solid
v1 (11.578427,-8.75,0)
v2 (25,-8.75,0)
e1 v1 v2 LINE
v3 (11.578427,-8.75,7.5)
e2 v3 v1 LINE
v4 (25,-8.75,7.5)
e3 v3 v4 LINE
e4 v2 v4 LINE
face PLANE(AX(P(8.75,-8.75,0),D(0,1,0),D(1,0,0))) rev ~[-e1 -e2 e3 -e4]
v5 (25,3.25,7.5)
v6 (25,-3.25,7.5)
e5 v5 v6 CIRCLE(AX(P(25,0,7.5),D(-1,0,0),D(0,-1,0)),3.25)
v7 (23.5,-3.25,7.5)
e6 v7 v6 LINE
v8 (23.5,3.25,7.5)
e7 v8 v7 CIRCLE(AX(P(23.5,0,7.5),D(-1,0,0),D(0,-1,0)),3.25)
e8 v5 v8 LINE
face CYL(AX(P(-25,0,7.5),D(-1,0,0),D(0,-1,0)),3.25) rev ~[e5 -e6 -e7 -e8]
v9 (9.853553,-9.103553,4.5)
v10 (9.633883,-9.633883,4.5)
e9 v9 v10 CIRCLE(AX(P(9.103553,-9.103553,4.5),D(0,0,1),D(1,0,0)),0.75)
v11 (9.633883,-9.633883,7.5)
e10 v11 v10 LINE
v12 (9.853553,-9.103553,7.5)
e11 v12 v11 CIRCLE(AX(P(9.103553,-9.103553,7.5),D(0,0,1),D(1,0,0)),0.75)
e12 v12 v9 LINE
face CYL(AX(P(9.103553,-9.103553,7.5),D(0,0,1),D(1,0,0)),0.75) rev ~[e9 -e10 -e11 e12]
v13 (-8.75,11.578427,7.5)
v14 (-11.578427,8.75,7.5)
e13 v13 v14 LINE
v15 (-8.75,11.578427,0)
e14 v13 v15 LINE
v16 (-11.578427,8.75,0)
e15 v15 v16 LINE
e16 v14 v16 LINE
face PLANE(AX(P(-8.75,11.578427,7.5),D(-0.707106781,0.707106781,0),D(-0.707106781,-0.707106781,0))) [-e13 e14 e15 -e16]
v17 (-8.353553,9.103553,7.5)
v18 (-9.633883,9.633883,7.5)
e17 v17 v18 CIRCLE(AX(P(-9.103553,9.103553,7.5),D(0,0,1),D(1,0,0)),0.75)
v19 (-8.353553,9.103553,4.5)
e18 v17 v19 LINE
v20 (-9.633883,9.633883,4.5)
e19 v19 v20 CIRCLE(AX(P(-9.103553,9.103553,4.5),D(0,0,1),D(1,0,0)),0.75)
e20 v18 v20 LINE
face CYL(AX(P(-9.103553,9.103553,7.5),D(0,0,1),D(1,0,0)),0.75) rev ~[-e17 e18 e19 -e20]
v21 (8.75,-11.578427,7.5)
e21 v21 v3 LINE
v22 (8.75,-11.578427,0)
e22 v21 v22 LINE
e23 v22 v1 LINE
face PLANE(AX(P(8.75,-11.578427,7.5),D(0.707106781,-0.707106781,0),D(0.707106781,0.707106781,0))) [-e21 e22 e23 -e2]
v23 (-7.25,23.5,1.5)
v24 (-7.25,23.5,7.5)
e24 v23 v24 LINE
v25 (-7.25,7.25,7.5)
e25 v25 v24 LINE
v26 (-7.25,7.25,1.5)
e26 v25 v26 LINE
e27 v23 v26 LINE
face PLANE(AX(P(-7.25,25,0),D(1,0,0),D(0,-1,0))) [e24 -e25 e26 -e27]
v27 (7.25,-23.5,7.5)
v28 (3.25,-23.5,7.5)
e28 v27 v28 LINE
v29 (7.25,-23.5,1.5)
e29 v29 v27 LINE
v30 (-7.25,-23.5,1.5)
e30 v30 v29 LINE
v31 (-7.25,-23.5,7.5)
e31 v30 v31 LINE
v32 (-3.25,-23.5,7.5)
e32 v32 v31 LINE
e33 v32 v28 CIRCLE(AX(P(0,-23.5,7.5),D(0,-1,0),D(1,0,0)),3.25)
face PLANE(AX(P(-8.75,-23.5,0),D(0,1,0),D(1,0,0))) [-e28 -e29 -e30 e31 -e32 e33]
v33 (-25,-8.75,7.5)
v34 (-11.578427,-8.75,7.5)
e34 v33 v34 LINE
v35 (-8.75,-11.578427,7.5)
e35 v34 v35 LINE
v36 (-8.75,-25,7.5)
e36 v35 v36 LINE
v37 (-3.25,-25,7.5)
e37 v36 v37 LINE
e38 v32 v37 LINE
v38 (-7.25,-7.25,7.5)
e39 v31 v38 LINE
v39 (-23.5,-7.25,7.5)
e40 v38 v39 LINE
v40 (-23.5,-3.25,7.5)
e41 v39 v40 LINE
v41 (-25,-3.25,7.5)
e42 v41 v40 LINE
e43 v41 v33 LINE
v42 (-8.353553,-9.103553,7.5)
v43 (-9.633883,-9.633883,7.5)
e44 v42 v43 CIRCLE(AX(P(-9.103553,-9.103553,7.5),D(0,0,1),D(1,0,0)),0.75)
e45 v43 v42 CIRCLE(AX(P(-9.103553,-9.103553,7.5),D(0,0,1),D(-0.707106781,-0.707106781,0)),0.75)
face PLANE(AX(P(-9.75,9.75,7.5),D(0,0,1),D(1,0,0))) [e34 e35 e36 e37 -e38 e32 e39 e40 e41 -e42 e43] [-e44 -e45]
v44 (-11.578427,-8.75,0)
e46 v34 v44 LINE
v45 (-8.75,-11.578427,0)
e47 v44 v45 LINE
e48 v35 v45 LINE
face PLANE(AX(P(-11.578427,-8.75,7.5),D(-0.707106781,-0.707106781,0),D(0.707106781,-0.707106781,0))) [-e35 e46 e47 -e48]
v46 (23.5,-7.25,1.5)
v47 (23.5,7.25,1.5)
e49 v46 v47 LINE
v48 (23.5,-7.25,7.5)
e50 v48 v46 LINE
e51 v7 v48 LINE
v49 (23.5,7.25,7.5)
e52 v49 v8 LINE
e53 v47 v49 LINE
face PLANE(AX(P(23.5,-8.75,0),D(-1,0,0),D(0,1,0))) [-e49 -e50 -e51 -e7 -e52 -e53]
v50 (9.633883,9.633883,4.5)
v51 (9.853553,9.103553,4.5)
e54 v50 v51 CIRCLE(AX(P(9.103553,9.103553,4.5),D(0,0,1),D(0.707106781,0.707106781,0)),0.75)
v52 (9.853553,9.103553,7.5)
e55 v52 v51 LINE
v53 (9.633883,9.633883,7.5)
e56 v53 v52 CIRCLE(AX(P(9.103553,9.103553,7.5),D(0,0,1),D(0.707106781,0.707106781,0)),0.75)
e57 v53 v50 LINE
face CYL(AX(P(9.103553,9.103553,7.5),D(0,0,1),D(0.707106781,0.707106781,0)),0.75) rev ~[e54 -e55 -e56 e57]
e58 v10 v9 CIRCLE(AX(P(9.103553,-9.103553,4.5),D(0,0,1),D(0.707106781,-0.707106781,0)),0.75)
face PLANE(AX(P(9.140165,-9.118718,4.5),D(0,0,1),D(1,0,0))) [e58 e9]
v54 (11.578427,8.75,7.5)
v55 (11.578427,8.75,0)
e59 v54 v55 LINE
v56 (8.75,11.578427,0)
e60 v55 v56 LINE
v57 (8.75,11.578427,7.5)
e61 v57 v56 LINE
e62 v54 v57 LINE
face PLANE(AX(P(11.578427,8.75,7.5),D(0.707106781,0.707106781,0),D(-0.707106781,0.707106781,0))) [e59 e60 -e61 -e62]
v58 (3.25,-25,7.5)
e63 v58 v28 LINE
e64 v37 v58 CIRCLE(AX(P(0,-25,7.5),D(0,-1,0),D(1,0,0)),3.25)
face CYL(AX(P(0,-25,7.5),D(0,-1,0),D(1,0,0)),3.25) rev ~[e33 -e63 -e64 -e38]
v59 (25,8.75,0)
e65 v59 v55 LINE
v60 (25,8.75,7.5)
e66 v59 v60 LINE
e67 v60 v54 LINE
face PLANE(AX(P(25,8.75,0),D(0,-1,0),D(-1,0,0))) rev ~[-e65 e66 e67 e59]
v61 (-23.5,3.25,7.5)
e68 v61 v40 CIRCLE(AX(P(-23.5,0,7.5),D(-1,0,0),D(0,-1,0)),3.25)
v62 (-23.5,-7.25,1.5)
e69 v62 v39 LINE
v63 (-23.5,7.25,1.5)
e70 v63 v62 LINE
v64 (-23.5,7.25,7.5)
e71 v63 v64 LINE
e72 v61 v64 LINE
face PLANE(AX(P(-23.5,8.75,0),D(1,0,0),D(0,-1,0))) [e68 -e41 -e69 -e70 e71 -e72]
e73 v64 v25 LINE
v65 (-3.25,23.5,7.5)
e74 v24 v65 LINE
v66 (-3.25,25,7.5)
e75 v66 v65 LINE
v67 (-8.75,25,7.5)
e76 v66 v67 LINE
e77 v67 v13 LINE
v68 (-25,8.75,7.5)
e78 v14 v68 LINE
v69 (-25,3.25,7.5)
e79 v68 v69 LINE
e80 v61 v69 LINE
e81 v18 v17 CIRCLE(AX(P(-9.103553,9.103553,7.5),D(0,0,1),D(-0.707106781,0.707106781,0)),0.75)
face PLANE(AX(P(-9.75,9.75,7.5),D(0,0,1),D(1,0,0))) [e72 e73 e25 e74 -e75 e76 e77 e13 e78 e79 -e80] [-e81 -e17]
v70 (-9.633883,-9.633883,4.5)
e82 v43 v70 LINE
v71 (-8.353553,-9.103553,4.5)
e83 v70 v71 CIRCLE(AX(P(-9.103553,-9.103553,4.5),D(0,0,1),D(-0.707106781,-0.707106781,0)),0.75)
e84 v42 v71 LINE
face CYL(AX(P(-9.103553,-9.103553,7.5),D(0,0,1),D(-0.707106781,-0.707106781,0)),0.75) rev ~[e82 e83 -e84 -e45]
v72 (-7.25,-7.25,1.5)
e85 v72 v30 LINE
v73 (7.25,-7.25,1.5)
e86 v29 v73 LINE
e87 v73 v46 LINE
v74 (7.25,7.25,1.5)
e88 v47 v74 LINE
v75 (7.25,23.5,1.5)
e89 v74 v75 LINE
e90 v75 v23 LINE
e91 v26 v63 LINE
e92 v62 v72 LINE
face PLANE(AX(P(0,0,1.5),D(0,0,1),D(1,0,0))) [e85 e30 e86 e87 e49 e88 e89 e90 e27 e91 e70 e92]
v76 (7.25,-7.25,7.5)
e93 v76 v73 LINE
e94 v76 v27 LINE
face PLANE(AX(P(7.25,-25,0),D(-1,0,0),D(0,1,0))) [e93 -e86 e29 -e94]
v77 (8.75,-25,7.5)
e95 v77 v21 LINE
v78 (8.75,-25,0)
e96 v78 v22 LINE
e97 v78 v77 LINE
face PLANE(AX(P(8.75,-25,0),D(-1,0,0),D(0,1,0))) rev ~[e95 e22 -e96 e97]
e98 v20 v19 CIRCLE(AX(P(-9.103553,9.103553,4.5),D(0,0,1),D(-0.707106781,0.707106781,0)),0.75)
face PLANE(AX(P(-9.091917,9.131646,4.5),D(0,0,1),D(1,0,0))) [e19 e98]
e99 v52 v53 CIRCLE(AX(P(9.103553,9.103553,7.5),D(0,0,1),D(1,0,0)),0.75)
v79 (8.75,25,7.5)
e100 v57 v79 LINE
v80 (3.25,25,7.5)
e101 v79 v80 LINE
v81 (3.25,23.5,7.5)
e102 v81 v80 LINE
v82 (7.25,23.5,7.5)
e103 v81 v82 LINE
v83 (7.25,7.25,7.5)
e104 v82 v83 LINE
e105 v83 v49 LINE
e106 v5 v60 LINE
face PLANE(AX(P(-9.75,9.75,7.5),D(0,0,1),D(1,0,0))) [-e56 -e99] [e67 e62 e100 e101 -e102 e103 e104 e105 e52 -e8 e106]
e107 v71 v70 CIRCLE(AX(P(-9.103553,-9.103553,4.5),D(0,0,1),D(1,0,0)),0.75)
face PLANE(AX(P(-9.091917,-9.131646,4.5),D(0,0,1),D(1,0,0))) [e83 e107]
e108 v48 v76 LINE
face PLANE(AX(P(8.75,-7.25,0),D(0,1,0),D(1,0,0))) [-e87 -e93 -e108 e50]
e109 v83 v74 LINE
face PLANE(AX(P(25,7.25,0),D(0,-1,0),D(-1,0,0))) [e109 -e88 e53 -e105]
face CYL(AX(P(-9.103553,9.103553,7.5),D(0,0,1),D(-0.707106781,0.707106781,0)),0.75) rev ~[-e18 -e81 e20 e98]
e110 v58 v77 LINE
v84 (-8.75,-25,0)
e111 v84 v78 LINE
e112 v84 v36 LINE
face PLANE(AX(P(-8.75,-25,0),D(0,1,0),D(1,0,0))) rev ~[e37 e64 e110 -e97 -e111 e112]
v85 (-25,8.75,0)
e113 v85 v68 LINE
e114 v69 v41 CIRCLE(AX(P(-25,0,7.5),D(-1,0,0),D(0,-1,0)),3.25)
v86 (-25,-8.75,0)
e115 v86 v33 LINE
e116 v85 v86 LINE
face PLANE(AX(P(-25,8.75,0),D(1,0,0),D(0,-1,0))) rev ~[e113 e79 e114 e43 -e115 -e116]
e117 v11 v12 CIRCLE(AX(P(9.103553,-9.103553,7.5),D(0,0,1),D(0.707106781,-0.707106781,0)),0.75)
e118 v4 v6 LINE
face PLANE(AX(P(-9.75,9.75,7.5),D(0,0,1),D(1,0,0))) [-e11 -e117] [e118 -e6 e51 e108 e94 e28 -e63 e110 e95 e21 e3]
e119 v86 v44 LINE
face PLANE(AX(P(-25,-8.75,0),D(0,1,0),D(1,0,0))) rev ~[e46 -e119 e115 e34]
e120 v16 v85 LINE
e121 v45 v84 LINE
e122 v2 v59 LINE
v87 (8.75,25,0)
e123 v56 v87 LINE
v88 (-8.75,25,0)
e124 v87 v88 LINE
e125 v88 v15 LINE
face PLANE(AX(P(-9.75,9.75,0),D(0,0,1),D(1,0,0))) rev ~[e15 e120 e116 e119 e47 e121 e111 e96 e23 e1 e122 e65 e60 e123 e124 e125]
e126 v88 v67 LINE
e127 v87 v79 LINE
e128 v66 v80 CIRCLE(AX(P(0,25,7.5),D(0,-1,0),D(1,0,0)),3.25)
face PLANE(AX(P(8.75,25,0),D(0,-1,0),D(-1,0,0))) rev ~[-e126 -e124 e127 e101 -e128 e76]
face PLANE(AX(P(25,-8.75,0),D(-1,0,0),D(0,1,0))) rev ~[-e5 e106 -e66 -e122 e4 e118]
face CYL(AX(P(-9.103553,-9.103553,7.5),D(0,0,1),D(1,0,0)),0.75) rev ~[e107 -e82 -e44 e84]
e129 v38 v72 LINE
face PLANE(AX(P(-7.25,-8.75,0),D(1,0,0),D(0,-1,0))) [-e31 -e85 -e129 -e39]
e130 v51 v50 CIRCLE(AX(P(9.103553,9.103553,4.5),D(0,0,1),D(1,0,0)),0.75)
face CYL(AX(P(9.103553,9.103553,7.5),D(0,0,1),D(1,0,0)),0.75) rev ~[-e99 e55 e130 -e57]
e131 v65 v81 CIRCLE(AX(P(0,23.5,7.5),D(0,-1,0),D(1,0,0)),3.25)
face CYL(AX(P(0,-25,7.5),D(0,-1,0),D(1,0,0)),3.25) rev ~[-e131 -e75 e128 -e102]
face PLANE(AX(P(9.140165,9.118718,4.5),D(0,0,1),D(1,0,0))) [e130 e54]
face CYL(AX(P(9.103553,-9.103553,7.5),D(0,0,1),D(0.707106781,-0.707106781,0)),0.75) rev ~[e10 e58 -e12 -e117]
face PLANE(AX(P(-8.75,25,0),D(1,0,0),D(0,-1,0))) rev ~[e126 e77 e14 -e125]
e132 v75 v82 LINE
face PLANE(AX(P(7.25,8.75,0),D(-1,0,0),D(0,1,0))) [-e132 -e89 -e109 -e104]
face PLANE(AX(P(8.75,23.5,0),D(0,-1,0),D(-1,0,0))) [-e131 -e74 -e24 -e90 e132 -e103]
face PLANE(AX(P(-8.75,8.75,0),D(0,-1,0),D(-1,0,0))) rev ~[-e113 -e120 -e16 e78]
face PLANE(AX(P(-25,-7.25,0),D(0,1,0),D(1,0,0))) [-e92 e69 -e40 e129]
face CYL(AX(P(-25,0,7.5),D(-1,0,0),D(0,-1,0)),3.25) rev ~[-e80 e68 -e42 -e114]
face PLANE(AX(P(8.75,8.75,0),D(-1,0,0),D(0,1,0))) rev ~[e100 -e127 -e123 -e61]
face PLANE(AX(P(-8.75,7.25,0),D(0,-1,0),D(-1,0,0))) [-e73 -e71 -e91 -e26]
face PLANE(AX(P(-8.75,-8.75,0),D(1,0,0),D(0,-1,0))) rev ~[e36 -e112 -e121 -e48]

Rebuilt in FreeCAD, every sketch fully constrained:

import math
import FreeCAD as App
import Part
import Sketcher
Q = App.Units.Quantity


def faces_at(feature, points):
    """Names of the faces that lie closest to the given points."""
    faces = feature.Shape.Faces
    near = lambda p: min(range(len(faces)), key=lambda i: faces[i].distToShape(Part.Vertex(*p))[0])
    return sorted({f"Face{near(p) + 1}" for p in points})


def add_polygon(sketch, points):
    """Adds a closed chain of lines whose ends are joined by coincident constraints."""
    first, n = sketch.GeometryCount, len(points)
    for a, b in zip(points, points[1:] + points[:1]):
        sketch.addGeometry(Part.LineSegment(App.Vector(*a, 0), App.Vector(*b, 0)), False)
    for i in range(n):
        sketch.addConstraint(Sketcher.Constraint("Coincident", first + i, 2, first + (i + 1) % n, 1))

doc = App.newDocument("Part")
body = doc.addObject("PartDesign::Body", "Body")

# Sketch on XY plane
sketch1 = doc.addObject("Sketcher::SketchObject", "Sketch")
body.addObject(sketch1)
sketch1.AttachmentSupport = (doc.XY_Plane, [""])
sketch1.MapMode = "FlatFace"
add_polygon(sketch1, [(25, -9), (25, 9), (9, 9), (9, 25), (-9, 25), (-9, 9), (-25, 9), (-25, -9), (-9, -9), (-9, -25), (9, -25), (9, -9)])  # lines 0-11
sketch1.addConstraint([
    Sketcher.Constraint("Vertical", 0),
    Sketcher.Constraint("Horizontal", 1),
    Sketcher.Constraint("Vertical", 2),
    Sketcher.Constraint("Horizontal", 3),
    Sketcher.Constraint("Vertical", 4),
    Sketcher.Constraint("Horizontal", 5),
    Sketcher.Constraint("Vertical", 6),
    Sketcher.Constraint("Horizontal", 7),
    Sketcher.Constraint("Vertical", 8),
    Sketcher.Constraint("Horizontal", 9),
    Sketcher.Constraint("Vertical", 10),
    Sketcher.Constraint("Horizontal", 11),
    Sketcher.Constraint("Symmetric", 0, 2, 6, 2, -1, 1),
    Sketcher.Constraint("Symmetric", 2, 2, 8, 2, -1, 1),
    Sketcher.Constraint("Symmetric", 4, 2, 10, 2, -1, 1),
    Sketcher.Constraint("Symmetric", 1, 2, 4, 2, -2),
    Sketcher.Constraint("Equal", 9, 0),
    Sketcher.Constraint("Equal", 11, 2),
    Sketcher.Constraint("DistanceX", 3, 2, 3, 1, Q("17.5 mm")),
    Sketcher.Constraint("DistanceX", -1, 1, 0, 2, Q("25 mm")),
])
pad1 = doc.addObject("PartDesign::Pad", "Pad")
body.addObject(pad1)
pad1.Profile = sketch1
pad1.Length = 7.5
doc.recompute()

thickness = doc.addObject("PartDesign::Thickness", "Thickness")
body.addObject(thickness)
thickness.Base = (pad1, faces_at(pad1, [(0, 0, 7.5)]))
thickness.Value = 1.5
thickness.Reversed = True
thickness.Join = "Intersection"

# Sketch on XY plane
sketch2 = doc.addObject("Sketcher::SketchObject", "Sketch001")
body.addObject(sketch2)
sketch2.AttachmentSupport = (doc.XY_Plane, [""])
sketch2.MapMode = "FlatFace"
sketch2.AttachmentOffset = App.Placement(App.Vector(0, 0, 7.5), App.Rotation())
add_polygon(sketch2, [(-8.8, 11.6), (-11.6, 8.8), (-8.8, 8.8)])  # lines 0-2
add_polygon(sketch2, [(8.8, 11.6), (8.8, 8.8), (11.6, 8.8)])  # lines 3-5
add_polygon(sketch2, [(-8.8, -11.6), (-8.8, -8.8), (-11.6, -8.8)])  # lines 6-8
add_polygon(sketch2, [(11.6, -8.8), (8.8, -8.8), (8.8, -11.6)])  # lines 9-11
sketch2.addConstraint([
    Sketcher.Constraint("Horizontal", 1),
    Sketcher.Constraint("Vertical", 2),
    Sketcher.Constraint("Vertical", 3),
    Sketcher.Constraint("Horizontal", 4),
    Sketcher.Constraint("Vertical", 6),
    Sketcher.Constraint("Horizontal", 7),
    Sketcher.Constraint("Horizontal", 9),
    Sketcher.Constraint("Vertical", 10),
    Sketcher.Constraint("Symmetric", 3, 2, 6, 2, -1, 1),
    Sketcher.Constraint("Symmetric", 1, 2, 9, 2, -1, 1),
    Sketcher.Constraint("Symmetric", 1, 2, 3, 2, -2),
    Sketcher.Constraint("Perpendicular", 0, 5),
    Sketcher.Constraint("Parallel", 5, 8),
    Sketcher.Constraint("Perpendicular", 8, 11),
    Sketcher.Constraint("Horizontal", 2, 2, 5, 2),
    Sketcher.Constraint("Horizontal", 8, 2, 10, 2),
    Sketcher.Constraint("Vertical", 0, 2, 7, 2),
    Sketcher.Constraint("Vertical", 4, 2, 11, 2),
    Sketcher.Constraint("Distance", 0, Q("4 mm")),
    Sketcher.Constraint("DistanceX", 1, 2, 3, 2, Q("17.5 mm")),
    Sketcher.Constraint("DistanceY", 6, 2, 1, 2, Q("17.5 mm")),
])
pad2 = doc.addObject("PartDesign::Pad", "Pad001")
body.addObject(pad2)
pad2.Profile = sketch2
pad2.Type = "UpToLast"
pad2.Reversed = True

# Sketch on XY plane
sketch3 = doc.addObject("Sketcher::SketchObject", "Sketch002")
body.addObject(sketch3)
sketch3.AttachmentSupport = (doc.XY_Plane, [""])
sketch3.MapMode = "FlatFace"
sketch3.AttachmentOffset = App.Placement(App.Vector(0, 0, 7.5), App.Rotation())
sketch3.addGeometry([
    Part.ArcOfCircle(Part.Circle(App.Vector(-9.1, 9.1, 0), App.Vector(0, 0, 1), 0.8), math.radians(135), math.radians(360)),  # 0
    Part.ArcOfCircle(Part.Circle(App.Vector(-9.1, 9.1, 0), App.Vector(0, 0, 1), 0.8), math.radians(0), math.radians(135)),  # 1
    Part.ArcOfCircle(Part.Circle(App.Vector(9.1, 9.1, 0), App.Vector(0, 0, 1), 0.8), math.radians(45), math.radians(360)),  # 2
    Part.ArcOfCircle(Part.Circle(App.Vector(9.1, 9.1, 0), App.Vector(0, 0, 1), 0.8), math.radians(0), math.radians(45)),  # 3
    Part.ArcOfCircle(Part.Circle(App.Vector(9.1, -9.1, 0), App.Vector(0, 0, 1), 0.8), math.radians(-45), math.radians(0)),  # 4
    Part.ArcOfCircle(Part.Circle(App.Vector(9.1, -9.1, 0), App.Vector(0, 0, 1), 0.8), math.radians(0), math.radians(315)),  # 5
    Part.ArcOfCircle(Part.Circle(App.Vector(-9.1, -9.1, 0), App.Vector(0, 0, 1), 0.8), math.radians(-135), math.radians(0)),  # 6
    Part.ArcOfCircle(Part.Circle(App.Vector(-9.1, -9.1, 0), App.Vector(0, 0, 1), 0.8), math.radians(0), math.radians(225)),  # 7
], False)
sketch3.addConstraint([
    Sketcher.Constraint("Tangent", 0, 1, 1, 2),
    Sketcher.Constraint("Coincident", 1, 1, 0, 2),
    Sketcher.Constraint("Tangent", 2, 1, 3, 2),
    Sketcher.Constraint("Coincident", 3, 1, 2, 2),
    Sketcher.Constraint("Tangent", 4, 1, 5, 2),
    Sketcher.Constraint("Coincident", 5, 1, 4, 2),
    Sketcher.Constraint("Tangent", 6, 1, 7, 2),
    Sketcher.Constraint("Coincident", 7, 1, 6, 2),
    Sketcher.Constraint("Equal", 1, 2),
    Sketcher.Constraint("Equal", 3, 4),
    Sketcher.Constraint("Equal", 5, 6),
    Sketcher.Constraint("Symmetric", 0, 3, 4, 3, -1, 1),
    Sketcher.Constraint("Symmetric", 2, 3, 6, 3, -1, 1),
    Sketcher.Constraint("Symmetric", 0, 3, 2, 3, -2),
    Sketcher.Constraint("Horizontal", 3, 3, 1, 1),
    Sketcher.Constraint("Horizontal", 0, 1, 2, 1),
    Sketcher.Constraint("Horizontal", 1, 1, 3, 1),
    Sketcher.Constraint("Horizontal", 7, 3, 5, 1),
    Sketcher.Constraint("Horizontal", 4, 1, 6, 1),
    Sketcher.Constraint("Horizontal", 5, 1, 7, 1),
    Sketcher.Constraint("Vertical", 2, 1, 4, 1),
    Sketcher.Constraint("Radius", 0, Q("0.75 mm")),
    Sketcher.Constraint("DistanceX", 0, 1, 0, 3, Q("0.53033 mm")),
    Sketcher.Constraint("DistanceX", 0, 3, -1, 1, Q("9.103553 mm")),
    Sketcher.Constraint("DistanceY", -1, 1, 0, 3, Q("9.103553 mm")),
])
pocket1 = doc.addObject("PartDesign::Pocket", "Pocket")
body.addObject(pocket1)
pocket1.Profile = sketch3
pocket1.Length = 3

# Sketch on XZ plane
sketch4 = doc.addObject("Sketcher::SketchObject", "Sketch003")
body.addObject(sketch4)
sketch4.AttachmentSupport = (doc.XZ_Plane, [""])
sketch4.MapMode = "FlatFace"
sketch4.AttachmentOffset = App.Placement(App.Vector(0, 0, 25), App.Rotation())
sketch4.addGeometry(Part.Circle(App.Vector(0, 7.5, 0), App.Vector(0, 0, 1), 3.2), False)
sketch4.addConstraint([
    Sketcher.Constraint("PointOnObject", 0, 3, -2),
    Sketcher.Constraint("Diameter", 0, Q("6.5 mm")),
    Sketcher.Constraint("DistanceY", -1, 1, 0, 3, Q("7.5 mm")),
])
pocket2 = doc.addObject("PartDesign::Pocket", "Pocket001")
body.addObject(pocket2)
pocket2.Profile = sketch4
pocket2.Type = "ThroughAll"

# Sketch on YZ plane
sketch5 = doc.addObject("Sketcher::SketchObject", "Sketch004")
body.addObject(sketch5)
sketch5.AttachmentSupport = (doc.YZ_Plane, [""])
sketch5.MapMode = "FlatFace"
sketch5.AttachmentOffset = App.Placement(App.Vector(0, 0, -25), App.Rotation())
sketch5.addGeometry(Part.Circle(App.Vector(0, 7.5, 0), App.Vector(0, 0, 1), 3.2), False)
sketch5.addConstraint([
    Sketcher.Constraint("PointOnObject", 0, 3, -2),
    Sketcher.Constraint("Diameter", 0, Q("6.5 mm")),
    Sketcher.Constraint("DistanceY", -1, 1, 0, 3, Q("7.5 mm")),
])
pocket3 = doc.addObject("PartDesign::Pocket", "Pocket002")
body.addObject(pocket3)
pocket3.Profile = sketch5
pocket3.Type = "ThroughAll"
pocket3.Reversed = True

doc.recompute()
